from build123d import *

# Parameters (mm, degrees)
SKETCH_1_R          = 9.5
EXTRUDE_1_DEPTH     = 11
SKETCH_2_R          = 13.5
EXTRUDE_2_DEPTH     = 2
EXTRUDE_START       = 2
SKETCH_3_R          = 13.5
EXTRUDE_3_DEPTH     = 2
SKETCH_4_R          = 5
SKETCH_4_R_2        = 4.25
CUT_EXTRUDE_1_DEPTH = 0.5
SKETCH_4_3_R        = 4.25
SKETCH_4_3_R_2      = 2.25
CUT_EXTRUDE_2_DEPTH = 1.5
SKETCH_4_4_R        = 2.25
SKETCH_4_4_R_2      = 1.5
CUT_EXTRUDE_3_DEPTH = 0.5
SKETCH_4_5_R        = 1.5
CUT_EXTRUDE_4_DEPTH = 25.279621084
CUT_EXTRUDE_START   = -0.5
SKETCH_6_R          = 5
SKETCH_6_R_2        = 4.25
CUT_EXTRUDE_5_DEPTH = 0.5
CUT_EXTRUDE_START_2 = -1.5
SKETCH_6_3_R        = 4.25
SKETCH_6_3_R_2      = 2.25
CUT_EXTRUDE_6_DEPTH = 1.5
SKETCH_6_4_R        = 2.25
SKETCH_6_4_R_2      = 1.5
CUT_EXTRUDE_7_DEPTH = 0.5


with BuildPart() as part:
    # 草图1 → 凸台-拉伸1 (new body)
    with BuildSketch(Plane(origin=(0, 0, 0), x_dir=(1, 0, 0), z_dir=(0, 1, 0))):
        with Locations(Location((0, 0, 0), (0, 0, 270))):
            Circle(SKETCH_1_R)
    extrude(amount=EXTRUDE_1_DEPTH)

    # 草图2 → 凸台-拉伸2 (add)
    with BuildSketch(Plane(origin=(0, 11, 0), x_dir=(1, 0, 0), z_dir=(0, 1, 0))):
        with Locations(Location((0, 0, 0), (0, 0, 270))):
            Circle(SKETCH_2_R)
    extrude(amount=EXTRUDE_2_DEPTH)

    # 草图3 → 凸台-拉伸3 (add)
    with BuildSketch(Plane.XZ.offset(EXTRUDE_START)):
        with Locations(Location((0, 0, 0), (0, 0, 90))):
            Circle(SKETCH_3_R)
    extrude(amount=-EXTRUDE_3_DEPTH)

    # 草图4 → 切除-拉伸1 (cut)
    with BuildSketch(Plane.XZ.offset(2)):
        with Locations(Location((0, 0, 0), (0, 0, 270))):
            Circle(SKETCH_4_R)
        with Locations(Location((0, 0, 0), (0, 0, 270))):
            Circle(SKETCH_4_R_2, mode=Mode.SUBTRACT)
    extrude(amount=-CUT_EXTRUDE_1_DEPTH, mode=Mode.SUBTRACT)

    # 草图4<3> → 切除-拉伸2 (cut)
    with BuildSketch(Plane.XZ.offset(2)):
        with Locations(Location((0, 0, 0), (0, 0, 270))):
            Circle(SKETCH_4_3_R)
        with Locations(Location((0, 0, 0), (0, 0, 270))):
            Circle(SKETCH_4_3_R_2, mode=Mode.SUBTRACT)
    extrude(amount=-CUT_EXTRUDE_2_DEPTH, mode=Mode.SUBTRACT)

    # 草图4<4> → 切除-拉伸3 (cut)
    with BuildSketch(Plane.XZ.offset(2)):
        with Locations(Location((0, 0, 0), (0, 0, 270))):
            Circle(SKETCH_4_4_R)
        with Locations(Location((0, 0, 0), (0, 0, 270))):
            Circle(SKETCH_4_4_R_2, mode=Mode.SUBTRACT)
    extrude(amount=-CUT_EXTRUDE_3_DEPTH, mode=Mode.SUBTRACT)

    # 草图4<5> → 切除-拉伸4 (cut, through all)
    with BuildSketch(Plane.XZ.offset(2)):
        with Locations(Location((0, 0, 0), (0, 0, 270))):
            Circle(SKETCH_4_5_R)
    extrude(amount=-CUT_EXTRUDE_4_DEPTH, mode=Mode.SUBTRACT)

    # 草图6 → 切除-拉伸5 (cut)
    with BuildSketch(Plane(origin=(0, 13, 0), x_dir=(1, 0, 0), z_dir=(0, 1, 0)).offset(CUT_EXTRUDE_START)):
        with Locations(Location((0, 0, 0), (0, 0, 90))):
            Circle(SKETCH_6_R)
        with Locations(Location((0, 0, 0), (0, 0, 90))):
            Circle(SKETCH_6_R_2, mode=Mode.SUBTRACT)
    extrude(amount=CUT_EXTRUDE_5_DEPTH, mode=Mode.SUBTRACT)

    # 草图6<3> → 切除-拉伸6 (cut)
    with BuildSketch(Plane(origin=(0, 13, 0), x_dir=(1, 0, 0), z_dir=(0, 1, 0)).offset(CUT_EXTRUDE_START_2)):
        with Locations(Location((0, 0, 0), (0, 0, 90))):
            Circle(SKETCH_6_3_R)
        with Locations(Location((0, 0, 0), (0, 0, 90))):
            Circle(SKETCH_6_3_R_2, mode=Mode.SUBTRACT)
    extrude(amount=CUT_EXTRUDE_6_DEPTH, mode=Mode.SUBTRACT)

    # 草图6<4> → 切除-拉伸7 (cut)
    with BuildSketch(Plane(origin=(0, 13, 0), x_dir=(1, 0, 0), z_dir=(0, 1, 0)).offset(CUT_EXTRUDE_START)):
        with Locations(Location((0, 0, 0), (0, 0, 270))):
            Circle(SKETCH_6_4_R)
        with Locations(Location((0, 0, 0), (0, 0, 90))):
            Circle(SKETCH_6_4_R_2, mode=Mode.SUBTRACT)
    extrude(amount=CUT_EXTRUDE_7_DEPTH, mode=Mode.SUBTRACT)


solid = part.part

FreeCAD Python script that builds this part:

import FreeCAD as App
import Part
import Sketcher

V = App.Vector

doc = App.newDocument("Part")
params = doc.addObject("Spreadsheet::Sheet", "Params")
for row, (alias, value) in enumerate([
    ("sketch1_diameter", "19 mm"),
    ("pad1_length", "11 mm"),
    ("sketch2_diameter", "27 mm"),
    ("pad2_length", "2 mm"),
    ("sketch3_diameter", "27 mm"),
    ("pad3_length", "2 mm"),
    ("sketch4_diameter", "10 mm"),
    ("sketch4_diameter2", "8.5 mm"),
    ("pocket1_length", "0.5 mm"),
    ("sketch5_diameter", "8.5 mm"),
    ("sketch5_diameter2", "4.5 mm"),
    ("pocket2_length", "1.5 mm"),
    ("sketch6_diameter", "3 mm"),
    ("sketch6_diameter2", "4.5 mm"),
    ("pocket3_length", "0.5 mm"),
    ("sketch7_diameter", "3 mm"),
    ("sketch8_diameter", "10 mm"),
    ("sketch8_diameter2", "8.5 mm"),
    ("pocket5_length", "0.5 mm"),
    ("sketch9_diameter", "8.5 mm"),
    ("sketch9_diameter2", "4.5 mm"),
    ("pocket6_length", "1.5 mm"),
    ("sketch10_diameter", "3 mm"),
    ("sketch10_diameter2", "4.5 mm"),
    ("pocket7_length", "0.5 mm"),
], start=1):
    params.set(f"A{row}", alias)
    params.set(f"B{row}", "=" + value)
    params.setAlias(f"B{row}", alias)

body = doc.addObject("PartDesign::Body", "Body")

# Sketch on XZ plane
sketch1 = body.newObject("Sketcher::SketchObject", "Sketch")
sketch1.AttachmentSupport = (doc.getObject("XZ_Plane"), [""])
sketch1.MapMode = "FlatFace"
sketch1.addGeometry(Part.Circle(V(0, 0, 0), V(0, 0, 1), 9.5), False)
sketch1.addConstraint([
    Sketcher.Constraint("Coincident", 0, 3, -1, 1),
    Sketcher.Constraint("Diameter", 0, 19.0),
])
sketch1.setExpression("Constraints[1]", "Params.sketch1_diameter")
pad1 = body.newObject("PartDesign::Pad", "Pad")
pad1.Profile = sketch1
pad1.setExpression("Length", "Params.pad1_length")
pad1.Reversed = True

# Sketch on XZ plane
sketch2 = body.newObject("Sketcher::SketchObject", "Sketch001")
sketch2.AttachmentSupport = (doc.getObject("XZ_Plane"), [""])
sketch2.MapMode = "FlatFace"
sketch2.AttachmentOffset = App.Placement(V(0, 0, -11), App.Rotation())
sketch2.addGeometry(Part.Circle(V(0, 0, 0), V(0, 0, 1), 13.5), False)
sketch2.addConstraint([
    Sketcher.Constraint("Coincident", 0, 3, -1, 1),
    Sketcher.Constraint("Diameter", 0, 27.0),
])
sketch2.setExpression("Constraints[1]", "Params.sketch2_diameter")
pad2 = body.newObject("PartDesign::Pad", "Pad001")
pad2.Profile = sketch2
pad2.setExpression("Length", "Params.pad2_length")
pad2.Reversed = True

# Sketch on XZ plane
sketch3 = body.newObject("Sketcher::SketchObject", "Sketch002")
sketch3.AttachmentSupport = (doc.getObject("XZ_Plane"), [""])
sketch3.MapMode = "FlatFace"
sketch3.AttachmentOffset = App.Placement(V(0, 0, 2), App.Rotation())
sketch3.addGeometry(Part.Circle(V(0, 0, 0), V(0, 0, 1), 13.5), False)
sketch3.addConstraint([
    Sketcher.Constraint("Coincident", 0, 3, -1, 1),
    Sketcher.Constraint("Diameter", 0, 27.0),
])
sketch3.setExpression("Constraints[1]", "Params.sketch3_diameter")
pad3 = body.newObject("PartDesign::Pad", "Pad002")
pad3.Profile = sketch3
pad3.setExpression("Length", "Params.pad3_length")
pad3.Reversed = True

# Sketch on XZ plane
sketch4 = body.newObject("Sketcher::SketchObject", "Sketch003")
sketch4.AttachmentSupport = (doc.getObject("XZ_Plane"), [""])
sketch4.MapMode = "FlatFace"
sketch4.AttachmentOffset = App.Placement(V(0, 0, 2), App.Rotation())
sketch4.addGeometry([
    Part.Circle(V(0, 0, 0), V(0, 0, 1), 5),
    Part.Circle(V(0, 0, 0), V(0, 0, 1), 4.25),
], False)
sketch4.addConstraint([
    Sketcher.Constraint("Coincident", 0, 3, -1, 1),
    Sketcher.Constraint("Coincident", 1, 3, -1, 1),
    Sketcher.Constraint("Diameter", 0, 10.0),
    Sketcher.Constraint("Diameter", 1, 8.5),
])
sketch4.setExpression("Constraints[2]", "Params.sketch4_diameter")
sketch4.setExpression("Constraints[3]", "Params.sketch4_diameter2")
pocket1 = body.newObject("PartDesign::Pocket", "Pocket")
pocket1.Profile = sketch4
pocket1.setExpression("Length", "Params.pocket1_length")

# Sketch on XZ plane
sketch5 = body.newObject("Sketcher::SketchObject", "Sketch004")
sketch5.AttachmentSupport = (doc.getObject("XZ_Plane"), [""])
sketch5.MapMode = "FlatFace"
sketch5.AttachmentOffset = App.Placement(V(0, 0, 2), App.Rotation())
sketch5.addGeometry([
    Part.Circle(V(0, 0, 0), V(0, 0, 1), 4.25),
    Part.Circle(V(0, 0, 0), V(0, 0, 1), 2.25),
], False)
sketch5.addConstraint([
    Sketcher.Constraint("Coincident", 0, 3, -1, 1),
    Sketcher.Constraint("Coincident", 1, 3, -1, 1),
    Sketcher.Constraint("Diameter", 0, 8.5),
    Sketcher.Constraint("Diameter", 1, 4.5),
])
sketch5.setExpression("Constraints[2]", "Params.sketch5_diameter")
sketch5.setExpression("Constraints[3]", "Params.sketch5_diameter2")
pocket2 = body.newObject("PartDesign::Pocket", "Pocket001")
pocket2.Profile = sketch5
pocket2.setExpression("Length", "Params.pocket2_length")

# Sketch on XZ plane
sketch6 = body.newObject("Sketcher::SketchObject", "Sketch005")
sketch6.AttachmentSupport = (doc.getObject("XZ_Plane"), [""])
sketch6.MapMode = "FlatFace"
sketch6.AttachmentOffset = App.Placement(V(0, 0, 2), App.Rotation())
sketch6.addGeometry([
    Part.Circle(V(0, 0, 0), V(0, 0, 1), 2.25),
    Part.Circle(V(0, 0, 0), V(0, 0, 1), 1.5),
], False)
sketch6.addConstraint([
    Sketcher.Constraint("Coincident", 0, 3, -1, 1),
    Sketcher.Constraint("Coincident", 1, 3, -1, 1),
    Sketcher.Constraint("Diameter", 1, 3.0),
    Sketcher.Constraint("Diameter", 0, 4.5),
])
sketch6.setExpression("Constraints[2]", "Params.sketch6_diameter")
sketch6.setExpression("Constraints[3]", "Params.sketch6_diameter2")
pocket3 = body.newObject("PartDesign::Pocket", "Pocket002")
pocket3.Profile = sketch6
pocket3.setExpression("Length", "Params.pocket3_length")

# Sketch on XZ plane
sketch7 = body.newObject("Sketcher::SketchObject", "Sketch006")
sketch7.AttachmentSupport = (doc.getObject("XZ_Plane"), [""])
sketch7.MapMode = "FlatFace"
sketch7.AttachmentOffset = App.Placement(V(0, 0, 2), App.Rotation())
sketch7.addGeometry(Part.Circle(V(0, 0, 0), V(0, 0, 1), 1.5), False)
sketch7.addConstraint([
    Sketcher.Constraint("Coincident", 0, 3, -1, 1),
    Sketcher.Constraint("Diameter", 0, 3.0),
])
sketch7.setExpression("Constraints[1]", "Params.sketch7_diameter")
pocket4 = body.newObject("PartDesign::Pocket", "Pocket003")
pocket4.Profile = sketch7
pocket4.Type = "ThroughAll"

# Sketch on XZ plane
sketch8 = body.newObject("Sketcher::SketchObject", "Sketch007")
sketch8.AttachmentSupport = (doc.getObject("XZ_Plane"), [""])
sketch8.MapMode = "FlatFace"
sketch8.AttachmentOffset = App.Placement(V(0, 0, -12.5), App.Rotation())
sketch8.addGeometry([
    Part.Circle(V(0, 0, 0), V(0, 0, 1), 5),
    Part.Circle(V(0, 0, 0), V(0, 0, 1), 4.25),
], False)
sketch8.addConstraint([
    Sketcher.Constraint("Coincident", 0, 3, -1, 1),
    Sketcher.Constraint("Coincident", 1, 3, -1, 1),
    Sketcher.Constraint("Diameter", 0, 10.0),
    Sketcher.Constraint("Diameter", 1, 8.5),
])
sketch8.setExpression("Constraints[2]", "Params.sketch8_diameter")
sketch8.setExpression("Constraints[3]", "Params.sketch8_diameter2")
pocket5 = body.newObject("PartDesign::Pocket", "Pocket004")
pocket5.Profile = sketch8
pocket5.setExpression("Length", "Params.pocket5_length")

# Sketch on XZ plane
sketch9 = body.newObject("Sketcher::SketchObject", "Sketch008")
sketch9.AttachmentSupport = (doc.getObject("XZ_Plane"), [""])
sketch9.MapMode = "FlatFace"
sketch9.AttachmentOffset = App.Placement(V(0, 0, -11.5), App.Rotation())
sketch9.addGeometry([
    Part.Circle(V(0, 0, 0), V(0, 0, 1), 4.25),
    Part.Circle(V(0, 0, 0), V(0, 0, 1), 2.25),
], False)
sketch9.addConstraint([
    Sketcher.Constraint("Coincident", 0, 3, -1, 1),
    Sketcher.Constraint("Coincident", 1, 3, -1, 1),
    Sketcher.Constraint("Diameter", 0, 8.5),
    Sketcher.Constraint("Diameter", 1, 4.5),
])
sketch9.setExpression("Constraints[2]", "Params.sketch9_diameter")
sketch9.setExpression("Constraints[3]", "Params.sketch9_diameter2")
pocket6 = body.newObject("PartDesign::Pocket", "Pocket005")
pocket6.Profile = sketch9
pocket6.setExpression("Length", "Params.pocket6_length")

# Sketch on XZ plane
sketch10 = body.newObject("Sketcher::SketchObject", "Sketch009")
sketch10.AttachmentSupport = (doc.getObject("XZ_Plane"), [""])
sketch10.MapMode = "FlatFace"
sketch10.AttachmentOffset = App.Placement(V(0, 0, -12.5), App.Rotation())
sketch10.addGeometry([
    Part.Circle(V(0, 0, 0), V(0, 0, 1), 2.25),
    Part.Circle(V(0, 0, 0), V(0, 0, 1), 1.5),
], False)
sketch10.addConstraint([
    Sketcher.Constraint("Coincident", 0, 3, -1, 1),
    Sketcher.Constraint("Coincident", 1, 3, -1, 1),
    Sketcher.Constraint("Diameter", 1, 3.0),
    Sketcher.Constraint("Diameter", 0, 4.5),
])
sketch10.setExpression("Constraints[2]", "Params.sketch10_diameter")
sketch10.setExpression("Constraints[3]", "Params.sketch10_diameter2")
pocket7 = body.newObject("PartDesign::Pocket", "Pocket006")
pocket7.Profile = sketch10
pocket7.setExpression("Length", "Params.pocket7_length")

doc.recompute()
